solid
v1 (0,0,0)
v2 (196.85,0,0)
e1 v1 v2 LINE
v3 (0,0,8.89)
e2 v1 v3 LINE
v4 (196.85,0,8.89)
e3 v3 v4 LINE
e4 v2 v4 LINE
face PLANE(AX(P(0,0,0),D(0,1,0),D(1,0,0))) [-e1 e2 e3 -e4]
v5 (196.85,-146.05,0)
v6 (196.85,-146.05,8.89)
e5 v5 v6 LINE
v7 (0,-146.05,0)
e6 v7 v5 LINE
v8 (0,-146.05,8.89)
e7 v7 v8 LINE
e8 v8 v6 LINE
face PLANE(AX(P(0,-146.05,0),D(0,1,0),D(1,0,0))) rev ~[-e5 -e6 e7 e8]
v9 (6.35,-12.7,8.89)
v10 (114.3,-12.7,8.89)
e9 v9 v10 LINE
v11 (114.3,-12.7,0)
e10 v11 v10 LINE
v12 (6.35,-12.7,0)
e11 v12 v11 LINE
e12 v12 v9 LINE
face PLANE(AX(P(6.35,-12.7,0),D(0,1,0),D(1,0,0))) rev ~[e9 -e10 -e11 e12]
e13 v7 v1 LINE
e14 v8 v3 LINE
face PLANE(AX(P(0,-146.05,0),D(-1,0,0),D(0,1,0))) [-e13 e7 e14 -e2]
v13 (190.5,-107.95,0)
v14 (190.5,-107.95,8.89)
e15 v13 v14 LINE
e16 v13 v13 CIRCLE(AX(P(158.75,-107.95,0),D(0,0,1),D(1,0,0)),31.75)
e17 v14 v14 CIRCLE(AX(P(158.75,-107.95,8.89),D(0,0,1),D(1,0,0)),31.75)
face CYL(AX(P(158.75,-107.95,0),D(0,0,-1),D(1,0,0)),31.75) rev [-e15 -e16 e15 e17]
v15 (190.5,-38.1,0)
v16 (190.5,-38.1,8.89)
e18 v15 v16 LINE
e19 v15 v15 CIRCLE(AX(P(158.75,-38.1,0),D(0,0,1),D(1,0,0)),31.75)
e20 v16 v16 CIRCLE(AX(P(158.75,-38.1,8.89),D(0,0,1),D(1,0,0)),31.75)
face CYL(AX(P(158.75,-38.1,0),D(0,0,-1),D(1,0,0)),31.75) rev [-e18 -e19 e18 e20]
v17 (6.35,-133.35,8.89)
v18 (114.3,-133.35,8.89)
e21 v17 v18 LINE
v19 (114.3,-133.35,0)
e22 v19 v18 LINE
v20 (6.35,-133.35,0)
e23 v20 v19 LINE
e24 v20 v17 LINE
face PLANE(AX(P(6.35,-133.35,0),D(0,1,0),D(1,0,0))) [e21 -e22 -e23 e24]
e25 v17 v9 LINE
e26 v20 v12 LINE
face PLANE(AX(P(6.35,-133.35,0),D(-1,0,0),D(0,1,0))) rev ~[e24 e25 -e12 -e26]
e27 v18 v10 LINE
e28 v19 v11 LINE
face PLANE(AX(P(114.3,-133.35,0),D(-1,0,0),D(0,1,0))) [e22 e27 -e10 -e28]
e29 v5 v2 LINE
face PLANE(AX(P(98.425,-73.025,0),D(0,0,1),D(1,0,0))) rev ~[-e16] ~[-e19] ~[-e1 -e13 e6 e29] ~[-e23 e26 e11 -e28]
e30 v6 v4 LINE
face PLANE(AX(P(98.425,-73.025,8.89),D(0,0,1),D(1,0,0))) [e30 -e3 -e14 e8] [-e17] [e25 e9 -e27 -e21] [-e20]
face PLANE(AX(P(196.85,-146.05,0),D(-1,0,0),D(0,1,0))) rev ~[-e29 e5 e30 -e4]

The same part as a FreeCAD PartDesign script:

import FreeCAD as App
import Part
import Sketcher
Q = App.Units.Quantity


def add_polygon(sketch, points):
    """Adds a closed chain of lines whose ends are joined by coincident constraints."""
    first, n = sketch.GeometryCount, len(points)
    for a, b in zip(points, points[1:] + points[:1]):
        sketch.addGeometry(Part.LineSegment(App.Vector(*a, 0), App.Vector(*b, 0)), False)
    for i in range(n):
        sketch.addConstraint(Sketcher.Constraint("Coincident", first + i, 2, first + (i + 1) % n, 1))

doc = App.newDocument("Part")
body = doc.addObject("PartDesign::Body", "Body")

sketch1 = body.newObject("Sketcher::SketchObject", "Sketch")
sketch1.AttachmentSupport = (doc.getObject("XY_Plane"), [""])
sketch1.MapMode = "FlatFace"
add_polygon(sketch1, [(0, 0), (0, -146), (197, -146), (197, 0)])
add_polygon(sketch1, [(114, -133), (6, -133), (6, -13), (114, -13)])
sketch1.addGeometry(Part.Circle(App.Vector(159, -108, 0), App.Vector(0, 0, 1), 32), False)
sketch1.addGeometry(Part.Circle(App.Vector(159, -38, 0), App.Vector(0, 0, 1), 32), False)
sketch1.addConstraint([
    Sketcher.Constraint("Vertical", 0),
    Sketcher.Constraint("Horizontal", 1),
    Sketcher.Constraint("Vertical", 2),
    Sketcher.Constraint("Horizontal", 3),
    Sketcher.Constraint("Horizontal", 4),
    Sketcher.Constraint("Vertical", 5),
    Sketcher.Constraint("Horizontal", 6),
    Sketcher.Constraint("Vertical", 7),
    Sketcher.Constraint("Coincident", 3, 2, -1, 1),
    Sketcher.Constraint("Equal", 8, 9),
    Sketcher.Constraint("Vertical", 8, 3, 9, 3),
    Sketcher.Constraint("Diameter", 8, Q("2.5 in")),
    Sketcher.Constraint("DistanceX", 4, 2, 8, 3, Q("6 in")),
    Sketcher.Constraint("DistanceY", 4, 2, 8, 3, Q("1 in")),
    Sketcher.Constraint("DistanceY", 9, 3, 5, 2, Q("1 in")),
    Sketcher.Constraint("DistanceX", 1, 1, 1, 2, Q("7.75 in")),
    Sketcher.Constraint("DistanceX", 4, 2, 4, 1, Q("4.25 in")),
    Sketcher.Constraint("DistanceY", 0, 2, 0, 1, Q("5.75 in")),
    Sketcher.Constraint("DistanceY", 5, 1, 5, 2, Q("4.75 in")),
    Sketcher.Constraint("DistanceY", 9, 3, -1, 1, Q("1.5 in")),
    Sketcher.Constraint("DistanceX", -1, 1, 6, 2, Q("4.5 in")),
])
pad1 = body.newObject("PartDesign::Pad", "Pad")
pad1.Profile = sketch1
pad1.Length = Q("0.35 in")

doc.recompute()
